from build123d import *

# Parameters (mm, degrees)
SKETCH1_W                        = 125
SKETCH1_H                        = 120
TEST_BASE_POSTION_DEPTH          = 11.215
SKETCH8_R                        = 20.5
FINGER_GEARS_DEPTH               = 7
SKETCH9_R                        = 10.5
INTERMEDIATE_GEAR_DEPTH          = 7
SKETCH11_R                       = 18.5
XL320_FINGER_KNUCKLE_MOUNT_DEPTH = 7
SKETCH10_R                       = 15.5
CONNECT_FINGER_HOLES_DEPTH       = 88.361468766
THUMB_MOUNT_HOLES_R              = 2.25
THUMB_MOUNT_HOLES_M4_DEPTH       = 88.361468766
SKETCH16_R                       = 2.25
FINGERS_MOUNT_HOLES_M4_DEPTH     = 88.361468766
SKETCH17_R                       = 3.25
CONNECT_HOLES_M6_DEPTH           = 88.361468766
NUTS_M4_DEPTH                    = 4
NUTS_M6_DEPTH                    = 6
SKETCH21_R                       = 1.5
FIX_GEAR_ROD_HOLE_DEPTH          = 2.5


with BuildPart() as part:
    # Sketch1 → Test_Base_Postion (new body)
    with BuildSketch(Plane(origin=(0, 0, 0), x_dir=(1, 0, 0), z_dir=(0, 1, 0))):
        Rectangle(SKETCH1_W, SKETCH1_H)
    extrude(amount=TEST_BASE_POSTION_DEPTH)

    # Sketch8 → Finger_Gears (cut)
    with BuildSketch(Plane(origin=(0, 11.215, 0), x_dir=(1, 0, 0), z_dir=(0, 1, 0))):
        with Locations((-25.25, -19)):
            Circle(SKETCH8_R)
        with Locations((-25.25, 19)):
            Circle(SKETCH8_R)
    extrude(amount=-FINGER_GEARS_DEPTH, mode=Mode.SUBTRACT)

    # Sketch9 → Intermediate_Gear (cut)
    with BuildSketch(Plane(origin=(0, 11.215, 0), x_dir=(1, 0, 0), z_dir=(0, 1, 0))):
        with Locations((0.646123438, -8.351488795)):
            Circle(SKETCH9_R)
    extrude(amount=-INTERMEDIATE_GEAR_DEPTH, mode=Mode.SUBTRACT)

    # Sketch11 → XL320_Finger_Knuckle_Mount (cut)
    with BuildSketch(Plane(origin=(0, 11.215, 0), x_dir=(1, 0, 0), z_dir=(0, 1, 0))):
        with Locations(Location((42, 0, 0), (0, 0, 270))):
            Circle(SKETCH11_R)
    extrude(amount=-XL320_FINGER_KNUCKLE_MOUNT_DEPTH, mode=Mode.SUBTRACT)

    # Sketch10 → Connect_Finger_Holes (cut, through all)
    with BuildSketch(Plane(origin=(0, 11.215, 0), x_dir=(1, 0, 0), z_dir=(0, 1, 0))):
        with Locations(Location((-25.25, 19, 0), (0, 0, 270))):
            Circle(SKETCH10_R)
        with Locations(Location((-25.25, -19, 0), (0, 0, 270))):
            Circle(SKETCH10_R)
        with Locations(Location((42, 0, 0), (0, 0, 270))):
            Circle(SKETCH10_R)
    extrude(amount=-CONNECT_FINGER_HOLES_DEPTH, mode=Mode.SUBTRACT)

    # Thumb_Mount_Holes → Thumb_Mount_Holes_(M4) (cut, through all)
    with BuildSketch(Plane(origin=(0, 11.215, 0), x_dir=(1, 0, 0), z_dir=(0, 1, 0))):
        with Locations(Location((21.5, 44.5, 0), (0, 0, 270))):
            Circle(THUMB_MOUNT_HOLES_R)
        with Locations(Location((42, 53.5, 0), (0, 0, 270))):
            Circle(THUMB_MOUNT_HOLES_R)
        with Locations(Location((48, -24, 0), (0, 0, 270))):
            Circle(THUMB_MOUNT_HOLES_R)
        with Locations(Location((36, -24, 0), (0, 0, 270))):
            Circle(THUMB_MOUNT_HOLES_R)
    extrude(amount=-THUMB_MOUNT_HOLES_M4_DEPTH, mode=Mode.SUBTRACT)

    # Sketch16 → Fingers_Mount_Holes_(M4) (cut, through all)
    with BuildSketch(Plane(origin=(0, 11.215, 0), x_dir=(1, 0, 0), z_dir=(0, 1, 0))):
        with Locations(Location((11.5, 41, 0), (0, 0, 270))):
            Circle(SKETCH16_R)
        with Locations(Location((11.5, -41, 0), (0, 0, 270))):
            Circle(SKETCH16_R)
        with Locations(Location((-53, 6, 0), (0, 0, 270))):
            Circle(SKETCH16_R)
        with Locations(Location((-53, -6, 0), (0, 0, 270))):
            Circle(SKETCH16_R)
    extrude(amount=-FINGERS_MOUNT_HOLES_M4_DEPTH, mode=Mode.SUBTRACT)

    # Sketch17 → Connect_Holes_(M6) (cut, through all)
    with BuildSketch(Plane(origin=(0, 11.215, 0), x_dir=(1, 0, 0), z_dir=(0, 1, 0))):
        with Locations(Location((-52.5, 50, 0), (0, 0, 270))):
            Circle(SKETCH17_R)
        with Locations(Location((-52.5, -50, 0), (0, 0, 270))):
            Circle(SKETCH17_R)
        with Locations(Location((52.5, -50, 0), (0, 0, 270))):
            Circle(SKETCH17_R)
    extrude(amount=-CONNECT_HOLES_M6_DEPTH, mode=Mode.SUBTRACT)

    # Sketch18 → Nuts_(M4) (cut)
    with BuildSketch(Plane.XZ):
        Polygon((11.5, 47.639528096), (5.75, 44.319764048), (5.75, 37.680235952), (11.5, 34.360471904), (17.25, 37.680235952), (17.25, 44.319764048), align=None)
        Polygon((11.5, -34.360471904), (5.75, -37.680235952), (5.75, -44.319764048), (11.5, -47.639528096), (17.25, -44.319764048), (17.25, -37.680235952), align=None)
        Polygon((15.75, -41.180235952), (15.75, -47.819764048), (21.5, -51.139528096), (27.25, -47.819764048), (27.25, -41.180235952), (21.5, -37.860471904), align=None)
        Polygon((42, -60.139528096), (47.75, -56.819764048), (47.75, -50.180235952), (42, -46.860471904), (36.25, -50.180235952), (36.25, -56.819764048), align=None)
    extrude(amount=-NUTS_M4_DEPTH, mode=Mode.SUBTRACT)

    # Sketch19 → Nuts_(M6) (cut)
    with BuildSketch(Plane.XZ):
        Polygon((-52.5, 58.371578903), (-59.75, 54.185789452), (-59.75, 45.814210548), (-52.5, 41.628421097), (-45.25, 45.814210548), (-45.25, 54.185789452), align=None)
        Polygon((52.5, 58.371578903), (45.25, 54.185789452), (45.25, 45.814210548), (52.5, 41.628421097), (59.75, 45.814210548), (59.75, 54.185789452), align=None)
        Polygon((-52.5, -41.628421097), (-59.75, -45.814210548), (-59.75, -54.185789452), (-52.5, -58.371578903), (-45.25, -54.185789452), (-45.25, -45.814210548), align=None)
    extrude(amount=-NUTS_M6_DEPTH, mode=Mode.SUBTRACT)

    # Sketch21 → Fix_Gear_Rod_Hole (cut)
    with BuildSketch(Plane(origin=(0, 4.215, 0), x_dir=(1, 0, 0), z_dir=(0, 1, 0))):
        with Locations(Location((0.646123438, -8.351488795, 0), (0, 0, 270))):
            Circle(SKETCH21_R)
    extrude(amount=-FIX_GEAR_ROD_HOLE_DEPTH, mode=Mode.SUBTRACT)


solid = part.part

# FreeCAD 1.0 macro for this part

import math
import FreeCAD as App
import Part
import Sketcher

V = App.Vector
Q = App.Units.Quantity


def add_polygon(sketch, points):
    """Adds a closed chain of lines whose ends are joined by coincident constraints."""
    first, n = sketch.GeometryCount, len(points)
    for a, b in zip(points, points[1:] + points[:1]):
        sketch.addGeometry(Part.LineSegment(App.Vector(*a, 0), App.Vector(*b, 0)), False)
    for i in range(n):
        sketch.addConstraint(Sketcher.Constraint("Coincident", first + i, 2, first + (i + 1) % n, 1))

doc = App.newDocument("Part")
params = doc.addObject("Spreadsheet::Sheet", "Params")
for row, (alias, value) in enumerate([
    ("sketch1_width", "125 mm"),
    ("sketch1_height", "120 mm"),
    ("pad1_length", "11.215 mm"),
    ("sketch2_radius", "20.5 mm"),
    ("pocket1_length", "7 mm"),
    ("sketch3_diameter", "21 mm"),
    ("pocket2_length", "7 mm"),
    ("sketch4_diameter", "37 mm"),
    ("pocket3_length", "7 mm"),
    ("sketch5_diameter", "31 mm"),
    ("sketch6_diameter", "4.5 mm"),
    ("sketch7_diameter", "4.5 mm"),
    ("sketch8_diameter", "6.5 mm"),
    ("pocket8_length", "4 mm"),
    ("pocket9_length", "6 mm"),
    ("sketch11_diameter", "3 mm"),
    ("pocket10_length", "2.5 mm"),
], start=1):
    params.set(f"A{row}", alias)
    params.set(f"B{row}", "=" + value)
    params.setAlias(f"B{row}", alias)

body = doc.addObject("PartDesign::Body", "Body")

# Sketch on XZ plane
sketch1 = doc.addObject("Sketcher::SketchObject", "Sketch")
body.addObject(sketch1)
sketch1.AttachmentSupport = (doc.XZ_Plane, [""])
sketch1.MapMode = "FlatFace"
add_polygon(sketch1, [(-62, -60), (-62, 60), (62, 60), (62, -60)])  # lines 0-3
sketch1.addConstraint([
    Sketcher.Constraint("Vertical", 0),
    Sketcher.Constraint("Horizontal", 1),
    Sketcher.Constraint("Vertical", 2),
    Sketcher.Constraint("Horizontal", 3),
    Sketcher.Constraint("Symmetric", 0, 2, 2, 2, -1, 1),
    Sketcher.Constraint("DistanceX", 1, 1, 1, 2, Q("125 mm")),
    Sketcher.Constraint("DistanceY", 0, 1, 0, 2, Q("120 mm")),
])
sketch1.setExpression("Constraints[9]", "Params.sketch1_width")
sketch1.setExpression("Constraints[10]", "Params.sketch1_height")
pad1 = doc.addObject("PartDesign::Pad", "Pad")
body.addObject(pad1)
pad1.Profile = sketch1
pad1.setExpression("Length", "Params.pad1_length")
pad1.Reversed = True

# Sketch on XZ plane
sketch2 = doc.addObject("Sketcher::SketchObject", "Sketch001")
body.addObject(sketch2)
sketch2.AttachmentSupport = (doc.XZ_Plane, [""])
sketch2.MapMode = "FlatFace"
sketch2.AttachmentOffset = App.Placement(V(0, 0, -11.215), App.Rotation())
sketch2.addGeometry([
    Part.ArcOfCircle(Part.Circle(V(-25, -19, 0), V(0, 0, 1), 20), math.radians(112), math.radians(428)),
    Part.ArcOfCircle(Part.Circle(V(-25, 19, 0), V(0, 0, 1), 20), math.radians(-68), math.radians(248)),
], False)
sketch2.addConstraint([
    Sketcher.Constraint("Coincident", 0, 1, 1, 2),
    Sketcher.Constraint("Coincident", 1, 1, 0, 2),
    Sketcher.Constraint("Equal", 0, 1),
    Sketcher.Constraint("Symmetric", 0, 3, 1, 3, -1),
    Sketcher.Constraint("Radius", 0, Q("20.5 mm")),
    Sketcher.Constraint("DistanceY", 0, 3, -1, 1, Q("19 mm")),
    Sketcher.Constraint("DistanceX", 0, 3, -1, 1, Q("25.25 mm")),
])
sketch2.setExpression("Constraints[4]", "Params.sketch2_radius")
pocket1 = doc.addObject("PartDesign::Pocket", "Pocket")
body.addObject(pocket1)
pocket1.Profile = sketch2
pocket1.setExpression("Length", "Params.pocket1_length")
pocket1.Reversed = True

# Sketch on XZ plane
sketch3 = doc.addObject("Sketcher::SketchObject", "Sketch002")
body.addObject(sketch3)
sketch3.AttachmentSupport = (doc.XZ_Plane, [""])
sketch3.MapMode = "FlatFace"
sketch3.AttachmentOffset = App.Placement(V(0, 0, -11.215), App.Rotation())
sketch3.addGeometry(Part.Circle(V(1, 8, 0), V(0, 0, 1), 10), False)
sketch3.addConstraint([
    Sketcher.Constraint("Diameter", 0, Q("21 mm")),
    Sketcher.Constraint("DistanceY", -1, 1, 0, 3, Q("8.351489 mm")),
    Sketcher.Constraint("DistanceX", -1, 1, 0, 3, Q("0.646123 mm")),
])
sketch3.setExpression("Constraints[0]", "Params.sketch3_diameter")
pocket2 = doc.addObject("PartDesign::Pocket", "Pocket001")
body.addObject(pocket2)
pocket2.Profile = sketch3
pocket2.setExpression("Length", "Params.pocket2_length")
pocket2.Reversed = True

# Sketch on XZ plane
sketch4 = doc.addObject("Sketcher::SketchObject", "Sketch003")
body.addObject(sketch4)
sketch4.AttachmentSupport = (doc.XZ_Plane, [""])
sketch4.MapMode = "FlatFace"
sketch4.AttachmentOffset = App.Placement(V(0, 0, -11.215), App.Rotation())
sketch4.addGeometry(Part.Circle(V(42, 0, 0), V(0, 0, 1), 18), False)
sketch4.addConstraint([
    Sketcher.Constraint("PointOnObject", 0, 3, -1),
    Sketcher.Constraint("Diameter", 0, Q("37 mm")),
    Sketcher.Constraint("DistanceX", -1, 1, 0, 3, Q("42 mm")),
])
sketch4.setExpression("Constraints[1]", "Params.sketch4_diameter")
pocket3 = doc.addObject("PartDesign::Pocket", "Pocket002")
body.addObject(pocket3)
pocket3.Profile = sketch4
pocket3.setExpression("Length", "Params.pocket3_length")
pocket3.Reversed = True

# Sketch on XZ plane
sketch5 = doc.addObject("Sketcher::SketchObject", "Sketch004")
body.addObject(sketch5)
sketch5.AttachmentSupport = (doc.XZ_Plane, [""])
sketch5.MapMode = "FlatFace"
sketch5.AttachmentOffset = App.Placement(V(0, 0, -11.215), App.Rotation())
sketch5.addGeometry([
    Part.Circle(V(-25, -19, 0), V(0, 0, 1), 16),
    Part.Circle(V(-25, 19, 0), V(0, 0, 1), 16),
    Part.Circle(V(42, 0, 0), V(0, 0, 1), 16),
], False)
sketch5.addConstraint([
    Sketcher.Constraint("Equal", 0, 1),
    Sketcher.Constraint("Equal", 1, 2),
    Sketcher.Constraint("Symmetric", 0, 3, 1, 3, -1),
    Sketcher.Constraint("PointOnObject", 2, 3, -1),
    Sketcher.Constraint("Diameter", 0, Q("31 mm")),
    Sketcher.Constraint("DistanceY", 0, 3, -1, 1, Q("19 mm")),
    Sketcher.Constraint("DistanceX", -1, 1, 2, 3, Q("42 mm")),
    Sketcher.Constraint("DistanceX", 0, 3, -1, 1, Q("25.25 mm")),
])
sketch5.setExpression("Constraints[4]", "Params.sketch5_diameter")
pocket4 = doc.addObject("PartDesign::Pocket", "Pocket003")
body.addObject(pocket4)
pocket4.Profile = sketch5
pocket4.Type = "ThroughAll"
pocket4.Reversed = True

# Sketch on XZ plane
sketch6 = doc.addObject("Sketcher::SketchObject", "Sketch005")
body.addObject(sketch6)
sketch6.AttachmentSupport = (doc.XZ_Plane, [""])
sketch6.MapMode = "FlatFace"
sketch6.AttachmentOffset = App.Placement(V(0, 0, -11.215), App.Rotation())
sketch6.addGeometry([
    Part.Circle(V(21.5, -44.5, 0), V(0, 0, 1), 2.2),
    Part.Circle(V(42, -53.5, 0), V(0, 0, 1), 2.2),
    Part.Circle(V(48, 24, 0), V(0, 0, 1), 2.2),
    Part.Circle(V(36, 24, 0), V(0, 0, 1), 2.2),
], False)
sketch6.addConstraint([
    Sketcher.Constraint("Equal", 0, 1),
    Sketcher.Constraint("Equal", 1, 2),
    Sketcher.Constraint("Equal", 2, 3),
    Sketcher.Constraint("Horizontal", 2, 3, 3, 3),
    Sketcher.Constraint("Diameter", 0, Q("4.5 mm")),
    Sketcher.Constraint("DistanceX", -1, 1, 1, 3, Q("42 mm")),
    Sketcher.Constraint("DistanceX", -1, 1, 2, 3, Q("48 mm")),
    Sketcher.Constraint("DistanceY", -1, 1, 2, 3, Q("24 mm")),
    Sketcher.Constraint("DistanceX", -1, 1, 3, 3, Q("36 mm")),
    Sketcher.Constraint("DistanceY", 1, 3, 0, 3, Q("9 mm")),
    Sketcher.Constraint("DistanceX", -1, 1, 0, 3, Q("21.5 mm")),
    Sketcher.Constraint("DistanceY", 0, 3, -1, 1, Q("44.5 mm")),
])
sketch6.setExpression("Constraints[4]", "Params.sketch6_diameter")
pocket5 = doc.addObject("PartDesign::Pocket", "Pocket004")
body.addObject(pocket5)
pocket5.Profile = sketch6
pocket5.Type = "ThroughAll"
pocket5.Reversed = True

# Sketch on XZ plane
sketch7 = doc.addObject("Sketcher::SketchObject", "Sketch006")
body.addObject(sketch7)
sketch7.AttachmentSupport = (doc.XZ_Plane, [""])
sketch7.MapMode = "FlatFace"
sketch7.AttachmentOffset = App.Placement(V(0, 0, -11.215), App.Rotation())
sketch7.addGeometry([
    Part.Circle(V(11.5, -41, 0), V(0, 0, 1), 2.2),
    Part.Circle(V(11.5, 41, 0), V(0, 0, 1), 2.2),
    Part.Circle(V(-53, -6, 0), V(0, 0, 1), 2.2),
    Part.Circle(V(-53, 6, 0), V(0, 0, 1), 2.2),
], False)
sketch7.addConstraint([
    Sketcher.Constraint("Equal", 0, 1),
    Sketcher.Constraint("Equal", 1, 2),
    Sketcher.Constraint("Equal", 2, 3),
    Sketcher.Constraint("Symmetric", 0, 3, 1, 3, -1),
    Sketcher.Constraint("Symmetric", 2, 3, 3, 3, -1),
    Sketcher.Constraint("Diameter", 0, Q("4.5 mm")),
    Sketcher.Constraint("DistanceY", 0, 3, -1, 1, Q("41 mm")),
    Sketcher.Constraint("DistanceX", 2, 3, -1, 1, Q("53 mm")),
    Sketcher.Constraint("DistanceY", 2, 3, -1, 1, Q("6 mm")),
    Sketcher.Constraint("DistanceX", -1, 1, 0, 3, Q("11.5 mm")),
])
sketch7.setExpression("Constraints[5]", "Params.sketch7_diameter")
pocket6 = doc.addObject("PartDesign::Pocket", "Pocket005")
body.addObject(pocket6)
pocket6.Profile = sketch7
pocket6.Type = "ThroughAll"
pocket6.Reversed = True

# Sketch on XZ plane
sketch8 = doc.addObject("Sketcher::SketchObject", "Sketch007")
body.addObject(sketch8)
sketch8.AttachmentSupport = (doc.XZ_Plane, [""])
sketch8.MapMode = "FlatFace"
sketch8.AttachmentOffset = App.Placement(V(0, 0, -11.215), App.Rotation())
sketch8.addGeometry([
    Part.Circle(V(-52.5, -50, 0), V(0, 0, 1), 3.2),
    Part.Circle(V(-52.5, 50, 0), V(0, 0, 1), 3.2),
    Part.Circle(V(52.5, 50, 0), V(0, 0, 1), 3.2),
], False)
sketch8.addConstraint([
    Sketcher.Constraint("Equal", 0, 1),
    Sketcher.Constraint("Equal", 1, 2),
    Sketcher.Constraint("Symmetric", 0, 3, 2, 3, -1, 1),
    Sketcher.Constraint("Symmetric", 1, 3, 2, 3, -2),
    Sketcher.Constraint("Diameter", 0, Q("6.5 mm")),
    Sketcher.Constraint("DistanceY", 0, 3, -1, 1, Q("50 mm")),
    Sketcher.Constraint("DistanceX", 1, 3, 2, 3, Q("105 mm")),
])
sketch8.setExpression("Constraints[4]", "Params.sketch8_diameter")
pocket7 = doc.addObject("PartDesign::Pocket", "Pocket006")
body.addObject(pocket7)
pocket7.Profile = sketch8
pocket7.Type = "ThroughAll"
pocket7.Reversed = True

# Sketch on XZ plane
sketch9 = doc.addObject("Sketcher::SketchObject", "Sketch008")
body.addObject(sketch9)
sketch9.AttachmentSupport = (doc.XZ_Plane, [""])
sketch9.MapMode = "FlatFace"
add_polygon(sketch9, [(11.5, 47.6), (5.8, 44.3), (5.8, 37.7), (11.5, 34.4), (17.2, 37.7), (17.2, 44.3)])  # lines 0-5
add_polygon(sketch9, [(17.2, -37.7), (11.5, -34.4), (5.8, -37.7), (5.8, -44.3), (11.5, -47.6), (15.8, -45.2), (15.8, -47.8), (21.5, -51.1), (27.2, -47.8), (27.2, -41.2), (21.5, -37.9), (17.2, -40.3)])  # lines 6-17
add_polygon(sketch9, [(42, -60.1), (47.8, -56.8), (47.8, -50.2), (42, -46.9), (36.2, -50.2), (36.2, -56.8)])  # lines 18-23
sketch9.addConstraint([
    Sketcher.Constraint("Vertical", 1),
    Sketcher.Constraint("Vertical", 4),
    Sketcher.Constraint("Vertical", 8),
    Sketcher.Constraint("Vertical", 11),
    Sketcher.Constraint("Vertical", 14),
    Sketcher.Constraint("Vertical", 17),
    Sketcher.Constraint("Vertical", 19),
    Sketcher.Constraint("Vertical", 22),
    Sketcher.Constraint("Symmetric", 2, 2, 6, 2, -1),
    Sketcher.Constraint("Symmetric", 1, 2, 7, 2, -1),
    Sketcher.Constraint("Symmetric", 5, 2, 9, 2, -1),
    Sketcher.Constraint("Symmetric", 3, 2, 17, 2, -1),
    Sketcher.Constraint("Parallel", 0, 3),
    Sketcher.Constraint("Parallel", 2, 5),
    Sketcher.Constraint("Parallel", 5, 6),
    Sketcher.Constraint("Parallel", 6, 9),
    Sketcher.Constraint("Parallel", 7, 10),
    Sketcher.Constraint("Parallel", 9, 12),
    Sketcher.Constraint("Parallel", 10, 13),
    Sketcher.Constraint("Parallel", 12, 15),
    Sketcher.Constraint("Parallel", 13, 16),
    Sketcher.Constraint("Parallel", 16, 18),
    Sketcher.Constraint("Parallel", 15, 20),
    Sketcher.Constraint("Parallel", 18, 21),
    Sketcher.Constraint("Parallel", 20, 23),
    Sketcher.Constraint("Horizontal", 1, 2, 3, 2),
    Sketcher.Constraint("Horizontal", 0, 2, 4, 2),
    Sketcher.Constraint("Horizontal", 11, 2, 13, 2),
    Sketcher.Constraint("Horizontal", 19, 2, 21, 2),
    Sketcher.Constraint("Horizontal", 18, 2, 22, 2),
    Sketcher.Constraint("Vertical", 12, 2, 15, 2),
    Sketcher.Constraint("Equal", 8, 14),
    Sketcher.Constraint("Equal", 14, 19),
    Sketcher.Constraint("Equal", 9, 12),
    Sketcher.Constraint("Equal", 15, 18),
    Sketcher.Constraint("Angle", 0, Q("-150 deg")),
    Sketcher.Constraint("DistanceX", -1, 1, 20, 2, Q("42 mm")),
    Sketcher.Constraint("DistanceY", 7, 2, 0, 2, Q("82 mm")),
    Sketcher.Constraint("DistanceX", 8, 2, 10, 2, Q("10 mm")),
    Sketcher.Constraint("DistanceY", 18, 2, 13, 2, Q("9 mm")),
    Sketcher.Constraint("DistanceX", 11, 2, 18, 2, Q("32 mm")),
    Sketcher.Constraint("DistanceX", 13, 2, 21, 2, Q("9 mm")),
    Sketcher.Constraint("DistanceY", 11, 2, 8, 2, Q("3.5 mm")),
    Sketcher.Constraint("DistanceY", 1, 2, 1, 1, Q("6.639528 mm")),
])
pocket8 = doc.addObject("PartDesign::Pocket", "Pocket007")
body.addObject(pocket8)
pocket8.Profile = sketch9
pocket8.setExpression("Length", "Params.pocket8_length")

# Sketch on XZ plane
sketch10 = doc.addObject("Sketcher::SketchObject", "Sketch009")
body.addObject(sketch10)
sketch10.AttachmentSupport = (doc.XZ_Plane, [""])
sketch10.MapMode = "FlatFace"
add_polygon(sketch10, [(-52, 58), (-60, 54), (-60, 46), (-52, 42), (-45, 46), (-45, 54)])  # lines 0-5
add_polygon(sketch10, [(52, 58), (45, 54), (45, 46), (52, 42), (60, 46), (60, 54)])  # lines 6-11
add_polygon(sketch10, [(-52, -42), (-60, -46), (-60, -54), (-52, -58), (-45, -54), (-45, -46)])  # lines 12-17
sketch10.addConstraint([
    Sketcher.Constraint("Vertical", 1),
    Sketcher.Constraint("Vertical", 4),
    Sketcher.Constraint("Vertical", 7),
    Sketcher.Constraint("Vertical", 10),
    Sketcher.Constraint("Vertical", 13),
    Sketcher.Constraint("Vertical", 16),
    Sketcher.Constraint("Symmetric", 9, 2, 12, 2, -1, 1),
    Sketcher.Constraint("Symmetric", 11, 2, 14, 2, -1, 1),
    Sketcher.Constraint("Symmetric", 6, 2, 15, 2, -1, 1),
    Sketcher.Constraint("Symmetric", 8, 2, 17, 2, -1, 1),
    Sketcher.Constraint("Symmetric", 4, 2, 6, 2, -2),
    Sketcher.Constraint("Symmetric", 2, 2, 8, 2, -2),
    Sketcher.Constraint("Symmetric", 1, 2, 9, 2, -2),
    Sketcher.Constraint("Symmetric", 5, 2, 11, 2, -2),
    Sketcher.Constraint("Parallel", 0, 3),
    Sketcher.Constraint("Parallel", 2, 5),
    Sketcher.Constraint("Parallel", 3, 6),
    Sketcher.Constraint("Parallel", 5, 8),
    Sketcher.Constraint("Parallel", 8, 11),
    Sketcher.Constraint("Parallel", 11, 14),
    Sketcher.Constraint("Parallel", 14, 17),
    Sketcher.Constraint("Horizontal", 1, 2, 3, 2),
    Sketcher.Constraint("Horizontal", 0, 2, 4, 2),
    Sketcher.Constraint("Angle", 0, Q("-150 deg")),
    Sketcher.Constraint("DistanceX", 0, 2, 6, 2, Q("105 mm")),
    Sketcher.Constraint("DistanceY", 12, 2, 0, 2, Q("100 mm")),
    Sketcher.Constraint("DistanceX", 1, 2, 3, 2, Q("14.5 mm")),
    Sketcher.Constraint("DistanceY", 1, 2, 1, 1, Q("8.371579 mm")),
])
pocket9 = doc.addObject("PartDesign::Pocket", "Pocket008")
body.addObject(pocket9)
pocket9.Profile = sketch10
pocket9.setExpression("Length", "Params.pocket9_length")

# Sketch on XZ plane
sketch11 = doc.addObject("Sketcher::SketchObject", "Sketch010")
body.addObject(sketch11)
sketch11.AttachmentSupport = (doc.XZ_Plane, [""])
sketch11.MapMode = "FlatFace"
sketch11.AttachmentOffset = App.Placement(V(0, 0, -4.215), App.Rotation())
sketch11.addGeometry(Part.Circle(V(0.6, 8.4, 0), V(0, 0, 1), 1.5), False)
sketch11.addConstraint([
    Sketcher.Constraint("Diameter", 0, Q("3 mm")),
    Sketcher.Constraint("DistanceY", -1, 1, 0, 3, Q("8.351489 mm")),
    Sketcher.Constraint("DistanceX", -1, 1, 0, 3, Q("0.646123 mm")),
])
sketch11.setExpression("Constraints[0]", "Params.sketch11_diameter")
pocket10 = doc.addObject("PartDesign::Pocket", "Pocket009")
body.addObject(pocket10)
pocket10.Profile = sketch11
pocket10.setExpression("Length", "Params.pocket10_length")
pocket10.Reversed = True

doc.recompute()
